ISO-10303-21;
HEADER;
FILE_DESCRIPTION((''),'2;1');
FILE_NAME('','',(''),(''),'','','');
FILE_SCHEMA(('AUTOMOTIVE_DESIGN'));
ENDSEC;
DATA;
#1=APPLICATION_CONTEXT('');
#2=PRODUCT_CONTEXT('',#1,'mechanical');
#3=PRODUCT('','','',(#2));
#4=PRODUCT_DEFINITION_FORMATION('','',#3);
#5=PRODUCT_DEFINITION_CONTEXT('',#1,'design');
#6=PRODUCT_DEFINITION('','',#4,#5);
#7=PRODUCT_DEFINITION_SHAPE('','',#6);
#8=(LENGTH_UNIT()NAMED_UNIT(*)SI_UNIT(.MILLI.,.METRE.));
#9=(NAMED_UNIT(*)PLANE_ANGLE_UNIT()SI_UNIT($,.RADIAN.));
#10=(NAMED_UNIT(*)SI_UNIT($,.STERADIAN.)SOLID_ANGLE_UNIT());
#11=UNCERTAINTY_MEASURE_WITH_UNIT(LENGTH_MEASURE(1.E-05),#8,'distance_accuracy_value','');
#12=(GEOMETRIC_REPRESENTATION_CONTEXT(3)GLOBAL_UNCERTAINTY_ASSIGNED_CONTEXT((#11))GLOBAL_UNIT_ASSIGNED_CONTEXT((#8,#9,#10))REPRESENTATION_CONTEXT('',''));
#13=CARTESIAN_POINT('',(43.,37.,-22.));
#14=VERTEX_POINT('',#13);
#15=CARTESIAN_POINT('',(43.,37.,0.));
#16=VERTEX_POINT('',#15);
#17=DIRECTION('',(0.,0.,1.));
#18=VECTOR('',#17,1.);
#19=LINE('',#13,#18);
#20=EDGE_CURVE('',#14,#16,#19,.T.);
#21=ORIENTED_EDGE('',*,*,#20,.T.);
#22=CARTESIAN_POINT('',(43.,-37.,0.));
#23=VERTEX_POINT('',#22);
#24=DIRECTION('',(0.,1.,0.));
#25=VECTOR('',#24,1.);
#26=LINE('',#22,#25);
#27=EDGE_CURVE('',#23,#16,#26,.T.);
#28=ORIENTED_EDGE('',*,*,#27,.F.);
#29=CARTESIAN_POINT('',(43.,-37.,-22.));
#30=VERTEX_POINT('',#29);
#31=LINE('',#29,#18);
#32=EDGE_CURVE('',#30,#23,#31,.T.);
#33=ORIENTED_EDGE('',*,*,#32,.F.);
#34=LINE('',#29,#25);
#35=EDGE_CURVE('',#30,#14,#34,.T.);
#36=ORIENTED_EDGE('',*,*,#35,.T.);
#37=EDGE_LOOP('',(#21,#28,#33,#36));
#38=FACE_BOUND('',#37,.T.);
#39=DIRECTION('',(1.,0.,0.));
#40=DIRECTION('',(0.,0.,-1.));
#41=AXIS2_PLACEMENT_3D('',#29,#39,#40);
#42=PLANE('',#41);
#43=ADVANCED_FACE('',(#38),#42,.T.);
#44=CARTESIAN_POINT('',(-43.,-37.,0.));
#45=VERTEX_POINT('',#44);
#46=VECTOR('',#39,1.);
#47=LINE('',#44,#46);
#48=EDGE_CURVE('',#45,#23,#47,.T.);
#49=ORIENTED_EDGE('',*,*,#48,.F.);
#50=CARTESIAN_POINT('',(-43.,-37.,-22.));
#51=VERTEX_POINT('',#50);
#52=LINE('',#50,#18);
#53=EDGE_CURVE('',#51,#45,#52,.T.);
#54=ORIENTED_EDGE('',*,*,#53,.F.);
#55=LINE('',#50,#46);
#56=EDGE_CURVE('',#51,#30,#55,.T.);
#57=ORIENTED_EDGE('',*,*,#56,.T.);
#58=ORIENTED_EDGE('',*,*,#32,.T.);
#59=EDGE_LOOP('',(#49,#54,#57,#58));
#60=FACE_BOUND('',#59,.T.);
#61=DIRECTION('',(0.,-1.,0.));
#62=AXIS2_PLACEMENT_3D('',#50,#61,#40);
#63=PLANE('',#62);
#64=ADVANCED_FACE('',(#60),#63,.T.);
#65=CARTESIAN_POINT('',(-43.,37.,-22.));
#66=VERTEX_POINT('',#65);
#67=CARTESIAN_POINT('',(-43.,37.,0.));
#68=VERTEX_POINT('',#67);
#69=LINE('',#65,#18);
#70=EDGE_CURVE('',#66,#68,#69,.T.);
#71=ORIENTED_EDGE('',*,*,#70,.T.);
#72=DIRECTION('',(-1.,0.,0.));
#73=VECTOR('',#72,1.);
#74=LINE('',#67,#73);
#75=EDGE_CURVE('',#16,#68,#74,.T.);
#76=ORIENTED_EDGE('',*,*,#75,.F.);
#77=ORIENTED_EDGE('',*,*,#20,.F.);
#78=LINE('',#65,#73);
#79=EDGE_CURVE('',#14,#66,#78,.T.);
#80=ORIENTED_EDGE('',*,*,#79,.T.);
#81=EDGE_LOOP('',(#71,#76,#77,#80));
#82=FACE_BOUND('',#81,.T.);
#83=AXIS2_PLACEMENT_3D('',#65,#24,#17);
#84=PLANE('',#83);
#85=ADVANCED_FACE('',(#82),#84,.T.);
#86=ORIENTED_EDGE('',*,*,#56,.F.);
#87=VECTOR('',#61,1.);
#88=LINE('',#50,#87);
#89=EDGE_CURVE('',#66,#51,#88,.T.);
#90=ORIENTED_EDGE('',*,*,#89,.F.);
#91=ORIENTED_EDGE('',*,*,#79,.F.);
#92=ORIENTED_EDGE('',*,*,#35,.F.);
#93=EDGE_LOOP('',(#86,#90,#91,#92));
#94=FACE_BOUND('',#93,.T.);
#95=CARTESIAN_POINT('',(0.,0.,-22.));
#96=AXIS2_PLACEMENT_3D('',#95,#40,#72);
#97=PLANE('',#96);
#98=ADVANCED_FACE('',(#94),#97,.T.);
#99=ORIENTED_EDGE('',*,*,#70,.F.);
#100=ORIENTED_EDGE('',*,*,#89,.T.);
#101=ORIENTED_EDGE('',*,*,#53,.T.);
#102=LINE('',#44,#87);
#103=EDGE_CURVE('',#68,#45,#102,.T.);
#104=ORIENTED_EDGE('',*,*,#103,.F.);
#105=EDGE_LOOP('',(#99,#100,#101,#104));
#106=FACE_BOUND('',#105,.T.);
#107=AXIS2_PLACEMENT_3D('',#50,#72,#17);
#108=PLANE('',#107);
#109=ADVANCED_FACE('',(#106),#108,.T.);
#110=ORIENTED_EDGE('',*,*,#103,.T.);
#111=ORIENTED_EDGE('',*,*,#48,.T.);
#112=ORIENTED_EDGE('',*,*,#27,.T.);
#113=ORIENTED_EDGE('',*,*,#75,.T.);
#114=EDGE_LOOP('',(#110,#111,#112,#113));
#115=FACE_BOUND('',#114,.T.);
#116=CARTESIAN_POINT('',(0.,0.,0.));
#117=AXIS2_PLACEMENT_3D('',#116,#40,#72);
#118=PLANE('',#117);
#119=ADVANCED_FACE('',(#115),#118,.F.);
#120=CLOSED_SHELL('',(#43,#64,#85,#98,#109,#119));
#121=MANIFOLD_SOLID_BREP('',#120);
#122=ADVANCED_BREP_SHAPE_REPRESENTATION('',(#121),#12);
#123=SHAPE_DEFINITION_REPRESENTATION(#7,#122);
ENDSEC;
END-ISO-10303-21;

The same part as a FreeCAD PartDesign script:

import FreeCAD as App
import Part
import Sketcher

V = App.Vector
Q = App.Units.Quantity

doc = App.newDocument("Part")
body = doc.addObject("PartDesign::Body", "Body")

sketch1 = body.newObject("Sketcher::SketchObject", "Sketch")
sketch1.AttachmentSupport = (doc.getObject("XY_Plane"), [""])
sketch1.MapMode = "FlatFace"
sketch1.addGeometry(Part.LineSegment(V(-43, 37, 0), V(-43, -37, 0)), False)
sketch1.addGeometry(Part.LineSegment(V(-43, -37, 0), V(43, -37, 0)), False)
sketch1.addGeometry(Part.LineSegment(V(43, -37, 0), V(43, 37, 0)), False)
sketch1.addGeometry(Part.LineSegment(V(43, 37, 0), V(-43, 37, 0)), False)
sketch1.addConstraint(Sketcher.Constraint("Coincident", 0, 2, 1, 1))
sketch1.addConstraint(Sketcher.Constraint("Coincident", 1, 2, 2, 1))
sketch1.addConstraint(Sketcher.Constraint("Coincident", 2, 2, 3, 1))
sketch1.addConstraint(Sketcher.Constraint("Coincident", 3, 2, 0, 1))
sketch1.addConstraint(Sketcher.Constraint("Vertical", 0))
sketch1.addConstraint(Sketcher.Constraint("Horizontal", 1))
sketch1.addConstraint(Sketcher.Constraint("Vertical", 2))
sketch1.addConstraint(Sketcher.Constraint("Horizontal", 3))
sketch1.addConstraint(Sketcher.Constraint("Symmetric", 0, 2, 2, 2, -1, 1))
sketch1.addConstraint(Sketcher.Constraint("DistanceX", 1, 1, 1, 2, Q("86 mm")))
sketch1.addConstraint(Sketcher.Constraint("DistanceY", 0, 2, 0, 1, Q("74 mm")))
pad1 = body.newObject("PartDesign::Pad", "Pad")
pad1.Profile = sketch1
pad1.Length = 22
pad1.Reversed = True

doc.recompute()
